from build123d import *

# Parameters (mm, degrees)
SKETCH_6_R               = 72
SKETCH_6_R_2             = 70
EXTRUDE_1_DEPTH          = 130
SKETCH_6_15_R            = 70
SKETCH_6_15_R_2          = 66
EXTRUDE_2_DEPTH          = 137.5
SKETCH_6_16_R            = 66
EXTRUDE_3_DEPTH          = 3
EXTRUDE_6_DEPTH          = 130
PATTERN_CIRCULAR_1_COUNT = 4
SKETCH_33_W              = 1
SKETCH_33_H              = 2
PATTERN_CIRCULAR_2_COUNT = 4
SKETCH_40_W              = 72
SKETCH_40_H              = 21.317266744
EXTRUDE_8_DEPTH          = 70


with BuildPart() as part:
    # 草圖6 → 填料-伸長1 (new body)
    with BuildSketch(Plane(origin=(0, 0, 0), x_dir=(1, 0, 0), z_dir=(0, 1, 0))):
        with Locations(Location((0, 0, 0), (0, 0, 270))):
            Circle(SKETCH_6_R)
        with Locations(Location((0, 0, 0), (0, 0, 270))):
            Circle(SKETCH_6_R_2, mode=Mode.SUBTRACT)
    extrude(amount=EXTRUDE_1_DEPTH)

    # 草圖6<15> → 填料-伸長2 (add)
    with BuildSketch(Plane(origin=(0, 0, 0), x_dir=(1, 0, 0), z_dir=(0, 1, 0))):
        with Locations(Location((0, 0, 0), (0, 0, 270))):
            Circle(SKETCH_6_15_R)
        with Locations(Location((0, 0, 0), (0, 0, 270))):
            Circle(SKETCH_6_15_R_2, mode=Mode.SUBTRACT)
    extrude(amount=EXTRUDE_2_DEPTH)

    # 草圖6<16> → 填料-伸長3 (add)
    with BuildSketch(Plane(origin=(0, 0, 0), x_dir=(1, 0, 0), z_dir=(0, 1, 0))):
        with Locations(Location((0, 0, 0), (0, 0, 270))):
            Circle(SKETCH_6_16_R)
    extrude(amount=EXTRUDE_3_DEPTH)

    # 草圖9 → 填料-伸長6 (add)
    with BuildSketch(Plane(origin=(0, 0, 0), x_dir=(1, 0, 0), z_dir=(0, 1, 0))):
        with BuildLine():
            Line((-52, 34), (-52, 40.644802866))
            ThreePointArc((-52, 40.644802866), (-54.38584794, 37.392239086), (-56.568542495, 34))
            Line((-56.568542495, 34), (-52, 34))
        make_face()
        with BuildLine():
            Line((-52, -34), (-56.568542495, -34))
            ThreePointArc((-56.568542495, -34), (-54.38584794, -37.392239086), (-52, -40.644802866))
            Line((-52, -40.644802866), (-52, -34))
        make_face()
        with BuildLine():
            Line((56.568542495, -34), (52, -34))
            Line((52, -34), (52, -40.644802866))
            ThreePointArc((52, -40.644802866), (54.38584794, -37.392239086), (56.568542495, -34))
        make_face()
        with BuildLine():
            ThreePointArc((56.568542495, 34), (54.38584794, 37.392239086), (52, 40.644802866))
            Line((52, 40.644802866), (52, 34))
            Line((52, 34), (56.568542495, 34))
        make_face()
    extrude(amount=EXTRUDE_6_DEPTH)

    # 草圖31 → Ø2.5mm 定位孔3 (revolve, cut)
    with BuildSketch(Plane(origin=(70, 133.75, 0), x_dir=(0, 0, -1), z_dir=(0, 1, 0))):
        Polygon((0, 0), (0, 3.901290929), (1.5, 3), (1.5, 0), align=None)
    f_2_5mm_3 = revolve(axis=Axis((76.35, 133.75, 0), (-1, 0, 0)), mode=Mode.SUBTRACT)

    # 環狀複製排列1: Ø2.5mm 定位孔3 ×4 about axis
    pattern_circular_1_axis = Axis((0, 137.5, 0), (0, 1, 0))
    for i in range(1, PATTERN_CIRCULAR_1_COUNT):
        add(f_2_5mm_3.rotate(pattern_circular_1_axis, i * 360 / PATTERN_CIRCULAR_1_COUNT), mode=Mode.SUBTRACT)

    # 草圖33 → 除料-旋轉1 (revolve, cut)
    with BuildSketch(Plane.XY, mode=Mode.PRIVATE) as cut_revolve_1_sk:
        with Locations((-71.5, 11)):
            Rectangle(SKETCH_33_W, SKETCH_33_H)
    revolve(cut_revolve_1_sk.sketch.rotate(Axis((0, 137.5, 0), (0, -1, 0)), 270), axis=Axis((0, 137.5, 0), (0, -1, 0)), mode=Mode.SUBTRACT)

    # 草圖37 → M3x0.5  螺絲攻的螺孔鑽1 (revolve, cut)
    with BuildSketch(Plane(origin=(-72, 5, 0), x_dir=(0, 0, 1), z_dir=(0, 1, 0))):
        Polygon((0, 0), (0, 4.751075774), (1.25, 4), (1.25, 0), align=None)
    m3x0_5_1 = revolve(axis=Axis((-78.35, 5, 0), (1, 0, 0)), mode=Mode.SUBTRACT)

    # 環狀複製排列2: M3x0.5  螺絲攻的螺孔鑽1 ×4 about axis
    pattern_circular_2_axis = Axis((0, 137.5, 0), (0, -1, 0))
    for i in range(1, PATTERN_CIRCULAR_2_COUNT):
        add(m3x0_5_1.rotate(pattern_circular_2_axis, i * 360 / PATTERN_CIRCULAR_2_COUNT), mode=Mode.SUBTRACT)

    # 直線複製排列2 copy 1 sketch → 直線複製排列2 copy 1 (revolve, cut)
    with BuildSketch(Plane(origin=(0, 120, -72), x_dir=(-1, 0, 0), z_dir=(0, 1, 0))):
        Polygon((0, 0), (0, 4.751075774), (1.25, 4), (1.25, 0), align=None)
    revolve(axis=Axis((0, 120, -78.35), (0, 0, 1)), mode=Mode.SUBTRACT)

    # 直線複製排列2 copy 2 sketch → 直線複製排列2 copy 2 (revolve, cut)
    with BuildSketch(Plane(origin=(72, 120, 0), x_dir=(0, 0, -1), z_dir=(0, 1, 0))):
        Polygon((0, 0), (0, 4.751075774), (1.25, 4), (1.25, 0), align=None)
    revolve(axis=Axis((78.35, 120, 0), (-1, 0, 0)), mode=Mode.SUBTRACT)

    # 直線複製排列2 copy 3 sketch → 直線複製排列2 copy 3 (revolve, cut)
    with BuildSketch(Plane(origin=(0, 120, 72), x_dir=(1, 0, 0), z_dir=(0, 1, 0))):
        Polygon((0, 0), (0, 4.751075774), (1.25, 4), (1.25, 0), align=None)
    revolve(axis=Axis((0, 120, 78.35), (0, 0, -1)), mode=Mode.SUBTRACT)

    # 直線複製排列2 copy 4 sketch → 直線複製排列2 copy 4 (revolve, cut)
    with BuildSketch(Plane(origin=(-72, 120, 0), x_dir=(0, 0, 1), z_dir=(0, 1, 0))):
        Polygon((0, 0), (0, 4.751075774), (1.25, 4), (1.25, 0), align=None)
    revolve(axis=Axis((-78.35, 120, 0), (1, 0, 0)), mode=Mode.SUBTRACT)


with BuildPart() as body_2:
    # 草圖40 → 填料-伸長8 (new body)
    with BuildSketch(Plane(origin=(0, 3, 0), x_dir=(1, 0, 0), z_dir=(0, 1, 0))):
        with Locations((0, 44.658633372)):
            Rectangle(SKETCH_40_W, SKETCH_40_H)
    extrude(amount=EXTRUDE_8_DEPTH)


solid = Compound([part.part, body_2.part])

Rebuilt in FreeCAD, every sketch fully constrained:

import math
import FreeCAD as App
import Part
import Sketcher
Q = App.Units.Quantity

doc = App.newDocument("Part")
body = doc.addObject("PartDesign::Body", "Body")

# Sketch on XZ plane
sketch1 = body.newObject("Sketcher::SketchObject", "Sketch")
sketch1.AttachmentSupport = (doc.getObject("XZ_Plane"), [""])
sketch1.MapMode = "FlatFace"
sketch1.addGeometry(Part.Circle(App.Vector(0, 0, 0), App.Vector(0, 0, 1), 72), False)
sketch1.addGeometry(Part.Circle(App.Vector(0, 0, 0), App.Vector(0, 0, 1), 70), False)
sketch1.addConstraint(Sketcher.Constraint("Coincident", 0, 3, -1, 1))
sketch1.addConstraint(Sketcher.Constraint("Coincident", 1, 3, -1, 1))
sketch1.addConstraint(Sketcher.Constraint("Diameter", 0, 144.0))
sketch1.addConstraint(Sketcher.Constraint("Diameter", 1, 140.0))
pad1 = body.newObject("PartDesign::Pad", "Pad")
pad1.Profile = sketch1
pad1.Length = 130
pad1.Reversed = True

# Sketch on XZ plane
sketch2 = body.newObject("Sketcher::SketchObject", "Sketch001")
sketch2.AttachmentSupport = (doc.getObject("XZ_Plane"), [""])
sketch2.MapMode = "FlatFace"
sketch2.addGeometry(Part.Circle(App.Vector(0, 0, 0), App.Vector(0, 0, 1), 70), False)
sketch2.addGeometry(Part.Circle(App.Vector(0, 0, 0), App.Vector(0, 0, 1), 66), False)
sketch2.addConstraint(Sketcher.Constraint("Coincident", 0, 3, -1, 1))
sketch2.addConstraint(Sketcher.Constraint("Coincident", 1, 3, -1, 1))
sketch2.addConstraint(Sketcher.Constraint("Diameter", 0, 140.0))
sketch2.addConstraint(Sketcher.Constraint("Diameter", 1, 132.0))
pad2 = body.newObject("PartDesign::Pad", "Pad001")
pad2.Profile = sketch2
pad2.Length = 137.5
pad2.Reversed = True

# Sketch on XZ plane
sketch3 = body.newObject("Sketcher::SketchObject", "Sketch002")
sketch3.AttachmentSupport = (doc.getObject("XZ_Plane"), [""])
sketch3.MapMode = "FlatFace"
sketch3.addGeometry(Part.Circle(App.Vector(0, 0, 0), App.Vector(0, 0, 1), 66), False)
sketch3.addConstraint(Sketcher.Constraint("Coincident", 0, 3, -1, 1))
sketch3.addConstraint(Sketcher.Constraint("Diameter", 0, 132.0))
pad3 = body.newObject("PartDesign::Pad", "Pad002")
pad3.Profile = sketch3
pad3.Length = 3
pad3.Reversed = True

# Sketch on XZ plane
sketch4 = body.newObject("Sketcher::SketchObject", "Sketch003")
sketch4.AttachmentSupport = (doc.getObject("XZ_Plane"), [""])
sketch4.MapMode = "FlatFace"
sketch4.addGeometry(Part.LineSegment(App.Vector(-52, -34, 0), App.Vector(-52, -40.6, 0)), False)
sketch4.addGeometry(Part.ArcOfCircle(Part.Circle(App.Vector(0, 0, 0), App.Vector(0, 0, 1), 66), math.radians(-148.99), math.radians(-141.99)), False)
sketch4.addGeometry(Part.LineSegment(App.Vector(-56.6, -34, 0), App.Vector(-52, -34, 0)), False)
sketch4.addGeometry(Part.LineSegment(App.Vector(-52, 34, 0), App.Vector(-56.6, 34, 0)), False)
sketch4.addGeometry(Part.ArcOfCircle(Part.Circle(App.Vector(0, 0, 0), App.Vector(0, 0, 1), 66), math.radians(141.99), math.radians(148.99)), False)
sketch4.addGeometry(Part.LineSegment(App.Vector(-52, 40.6, 0), App.Vector(-52, 34, 0)), False)
sketch4.addGeometry(Part.LineSegment(App.Vector(56.6, 34, 0), App.Vector(52, 34, 0)), False)
sketch4.addGeometry(Part.LineSegment(App.Vector(52, 34, 0), App.Vector(52, 40.6, 0)), False)
sketch4.addGeometry(Part.ArcOfCircle(Part.Circle(App.Vector(0, 0, 0), App.Vector(0, 0, 1), 66), math.radians(31.01), math.radians(38.01)), False)
sketch4.addGeometry(Part.ArcOfCircle(Part.Circle(App.Vector(0, 0, 0), App.Vector(0, 0, 1), 66), math.radians(-38.01), math.radians(-31.01)), False)
sketch4.addGeometry(Part.LineSegment(App.Vector(52, -40.6, 0), App.Vector(52, -34, 0)), False)
sketch4.addGeometry(Part.LineSegment(App.Vector(52, -34, 0), App.Vector(56.6, -34, 0)), False)
sketch4.addConstraint(Sketcher.Constraint("Coincident", 0, 2, 1, 2))
sketch4.addConstraint(Sketcher.Constraint("Coincident", 1, 1, 2, 1))
sketch4.addConstraint(Sketcher.Constraint("Coincident", 2, 2, 0, 1))
sketch4.addConstraint(Sketcher.Constraint("Coincident", 3, 2, 4, 2))
sketch4.addConstraint(Sketcher.Constraint("Coincident", 4, 1, 5, 1))
sketch4.addConstraint(Sketcher.Constraint("Coincident", 5, 2, 3, 1))
sketch4.addConstraint(Sketcher.Constraint("Coincident", 6, 2, 7, 1))
sketch4.addConstraint(Sketcher.Constraint("Coincident", 7, 2, 8, 2))
sketch4.addConstraint(Sketcher.Constraint("Coincident", 8, 1, 6, 1))
sketch4.addConstraint(Sketcher.Constraint("Coincident", 9, 1, 10, 1))
sketch4.addConstraint(Sketcher.Constraint("Coincident", 10, 2, 11, 1))
sketch4.addConstraint(Sketcher.Constraint("Coincident", 11, 2, 9, 2))
sketch4.addConstraint(Sketcher.Constraint("Vertical", 0))
sketch4.addConstraint(Sketcher.Constraint("Horizontal", 2))
sketch4.addConstraint(Sketcher.Constraint("Horizontal", 3))
sketch4.addConstraint(Sketcher.Constraint("Vertical", 5))
sketch4.addConstraint(Sketcher.Constraint("Horizontal", 6))
sketch4.addConstraint(Sketcher.Constraint("Vertical", 7))
sketch4.addConstraint(Sketcher.Constraint("Vertical", 10))
sketch4.addConstraint(Sketcher.Constraint("Horizontal", 11))
sketch4.addConstraint(Sketcher.Constraint("Coincident", 1, 3, -1, 1))
sketch4.addConstraint(Sketcher.Constraint("Coincident", 4, 3, -1, 1))
sketch4.addConstraint(Sketcher.Constraint("Coincident", 8, 3, -1, 1))
sketch4.addConstraint(Sketcher.Constraint("Coincident", 9, 3, -1, 1))
sketch4.addConstraint(Sketcher.Constraint("Equal", 1, 4))
sketch4.addConstraint(Sketcher.Constraint("Equal", 4, 8))
sketch4.addConstraint(Sketcher.Constraint("Equal", 8, 9))
sketch4.addConstraint(Sketcher.Constraint("Symmetric", 2, 2, 6, 2, -1, 1))
sketch4.addConstraint(Sketcher.Constraint("Symmetric", 5, 2, 10, 2, -1, 1))
sketch4.addConstraint(Sketcher.Constraint("Symmetric", 5, 2, 6, 2, -2))
sketch4.addConstraint(Sketcher.Constraint("Radius", 1, 66.0))
sketch4.addConstraint(Sketcher.Constraint("DistanceX", 0, 2, -1, 1, 52.0))
sketch4.addConstraint(Sketcher.Constraint("DistanceY", 1, 1, -1, 1, 34.0))
pad4 = body.newObject("PartDesign::Pad", "Pad003")
pad4.Profile = sketch4
pad4.Length = 130
pad4.Reversed = True

# Sketch on XZ plane
sketch5 = body.newObject("Sketcher::SketchObject", "Sketch004")
sketch5.AttachmentSupport = (doc.getObject("XZ_Plane"), [""])
sketch5.MapMode = "FlatFace"
sketch5.AttachmentOffset = App.Placement(App.Vector(0, 0, -133.75), App.Rotation())
sketch5.addGeometry(Part.LineSegment(App.Vector(66.1, 0, 0), App.Vector(70, 0, 0)), False)
sketch5.addGeometry(Part.LineSegment(App.Vector(70, 0, 0), App.Vector(70, -1.5, 0)), False)
sketch5.addGeometry(Part.LineSegment(App.Vector(70, -1.5, 0), App.Vector(67, -1.5, 0)), False)
sketch5.addGeometry(Part.LineSegment(App.Vector(67, -1.5, 0), App.Vector(66.1, 0, 0)), False)
sketch5.addConstraint(Sketcher.Constraint("Coincident", 0, 2, 1, 1))
sketch5.addConstraint(Sketcher.Constraint("Coincident", 1, 2, 2, 1))
sketch5.addConstraint(Sketcher.Constraint("Coincident", 2, 2, 3, 1))
sketch5.addConstraint(Sketcher.Constraint("Coincident", 3, 2, 0, 1))
sketch5.addConstraint(Sketcher.Constraint("Horizontal", 0))
sketch5.addConstraint(Sketcher.Constraint("Vertical", 1))
sketch5.addConstraint(Sketcher.Constraint("Horizontal", 2))
sketch5.addConstraint(Sketcher.Constraint("PointOnObject", 0, 2, -1))
sketch5.addConstraint(Sketcher.Constraint("DistanceX", 2, 2, 2, 1, 3.0))
sketch5.addConstraint(Sketcher.Constraint("Angle", 3, Q("121 deg")))
sketch5.addConstraint(Sketcher.Constraint("DistanceY", 1, 2, 1, 1, 1.5))
sketch5.addConstraint(Sketcher.Constraint("DistanceX", -1, 1, 0, 2, 70.0))
groove = body.newObject("PartDesign::Groove", "Groove")
groove.Profile = sketch5
groove.ReferenceAxis = (sketch5, ["H_Axis"])
groove.Angle = 360
doc.recompute()

polarpattern = body.newObject("PartDesign::PolarPattern", "PolarPattern")
polarpattern.Originals = [groove]
polarpattern.Axis = (doc.getObject("Y_Axis"), [""])
polarpattern.Angle = 360
polarpattern.Occurrences = 4
body.Tip = polarpattern

# Sketch on XY plane
sketch6 = body.newObject("Sketcher::SketchObject", "Sketch005")
sketch6.AttachmentSupport = (doc.getObject("XY_Plane"), [""])
sketch6.MapMode = "FlatFace"
sketch6.addGeometry(Part.LineSegment(App.Vector(-72, 12, 0), App.Vector(-72, 10, 0)), False)
sketch6.addGeometry(Part.LineSegment(App.Vector(-72, 10, 0), App.Vector(-71, 10, 0)), False)
sketch6.addGeometry(Part.LineSegment(App.Vector(-71, 10, 0), App.Vector(-71, 12, 0)), False)
sketch6.addGeometry(Part.LineSegment(App.Vector(-71, 12, 0), App.Vector(-72, 12, 0)), False)
sketch6.addConstraint(Sketcher.Constraint("Coincident", 0, 2, 1, 1))
sketch6.addConstraint(Sketcher.Constraint("Coincident", 1, 2, 2, 1))
sketch6.addConstraint(Sketcher.Constraint("Coincident", 2, 2, 3, 1))
sketch6.addConstraint(Sketcher.Constraint("Coincident", 3, 2, 0, 1))
sketch6.addConstraint(Sketcher.Constraint("Vertical", 0))
sketch6.addConstraint(Sketcher.Constraint("Horizontal", 1))
sketch6.addConstraint(Sketcher.Constraint("Vertical", 2))
sketch6.addConstraint(Sketcher.Constraint("Horizontal", 3))
sketch6.addConstraint(Sketcher.Constraint("DistanceX", 1, 1, 1, 2, 1.0))
sketch6.addConstraint(Sketcher.Constraint("DistanceY", 0, 2, 0, 1, 2.0))
sketch6.addConstraint(Sketcher.Constraint("DistanceX", 0, 2, -1, 1, 72.0))
sketch6.addConstraint(Sketcher.Constraint("DistanceY", -1, 1, 0, 2, 10.0))
groove2 = body.newObject("PartDesign::Groove", "Groove001")
groove2.Profile = sketch6
groove2.ReferenceAxis = (sketch6, ["V_Axis"])
groove2.Angle = 360

# Sketch on XZ plane
sketch7 = body.newObject("Sketcher::SketchObject", "Sketch006")
sketch7.AttachmentSupport = (doc.getObject("XZ_Plane"), [""])
sketch7.MapMode = "FlatFace"
sketch7.AttachmentOffset = App.Placement(App.Vector(0, 0, -5), App.Rotation())
sketch7.addGeometry(Part.LineSegment(App.Vector(-67.2, 0, 0), App.Vector(-72, 0, 0)), False)
sketch7.addGeometry(Part.LineSegment(App.Vector(-72, 0, 0), App.Vector(-72, 1.2, 0)), False)
sketch7.addGeometry(Part.LineSegment(App.Vector(-72, 1.2, 0), App.Vector(-68, 1.2, 0)), False)
sketch7.addGeometry(Part.LineSegment(App.Vector(-68, 1.2, 0), App.Vector(-67.2, 0, 0)), False)
sketch7.addConstraint(Sketcher.Constraint("Coincident", 0, 2, 1, 1))
sketch7.addConstraint(Sketcher.Constraint("Coincident", 1, 2, 2, 1))
sketch7.addConstraint(Sketcher.Constraint("Coincident", 2, 2, 3, 1))
sketch7.addConstraint(Sketcher.Constraint("Coincident", 3, 2, 0, 1))
sketch7.addConstraint(Sketcher.Constraint("Horizontal", 0))
sketch7.addConstraint(Sketcher.Constraint("Vertical", 1))
sketch7.addConstraint(Sketcher.Constraint("Horizontal", 2))
sketch7.addConstraint(Sketcher.Constraint("PointOnObject", 0, 2, -1))
sketch7.addConstraint(Sketcher.Constraint("DistanceX", 2, 1, 2, 2, 4.0))
sketch7.addConstraint(Sketcher.Constraint("Angle", 3, Q("-59 deg")))
sketch7.addConstraint(Sketcher.Constraint("DistanceX", 0, 2, -1, 1, 72.0))
sketch7.addConstraint(Sketcher.Constraint("DistanceY", 1, 1, 1, 2, 1.25))
groove3 = body.newObject("PartDesign::Groove", "Groove002")
groove3.Profile = sketch7
groove3.ReferenceAxis = (sketch7, ["H_Axis"])
groove3.Angle = 360
doc.recompute()

polarpattern2 = body.newObject("PartDesign::PolarPattern", "PolarPattern001")
polarpattern2.Originals = [groove3]
polarpattern2.Axis = (doc.getObject("Y_Axis"), [""])
polarpattern2.Angle = 360
polarpattern2.Occurrences = 4
body.Tip = polarpattern2

# Sketch on XZ plane
sketch8 = body.newObject("Sketcher::SketchObject", "Sketch007")
sketch8.AttachmentSupport = (doc.getObject("XZ_Plane"), [""])
sketch8.MapMode = "FlatFace"
sketch8.AttachmentOffset = App.Placement(App.Vector(0, 0, -120), App.Rotation())
sketch8.addGeometry(Part.LineSegment(App.Vector(0, -67.2, 0), App.Vector(0, -72, 0)), False)
sketch8.addGeometry(Part.LineSegment(App.Vector(0, -72, 0), App.Vector(-1.2, -72, 0)), False)
sketch8.addGeometry(Part.LineSegment(App.Vector(-1.2, -72, 0), App.Vector(-1.2, -68, 0)), False)
sketch8.addGeometry(Part.LineSegment(App.Vector(-1.2, -68, 0), App.Vector(0, -67.2, 0)), False)
sketch8.addConstraint(Sketcher.Constraint("Coincident", 0, 2, 1, 1))
sketch8.addConstraint(Sketcher.Constraint("Coincident", 1, 2, 2, 1))
sketch8.addConstraint(Sketcher.Constraint("Coincident", 2, 2, 3, 1))
sketch8.addConstraint(Sketcher.Constraint("Coincident", 3, 2, 0, 1))
sketch8.addConstraint(Sketcher.Constraint("Vertical", 0))
sketch8.addConstraint(Sketcher.Constraint("Horizontal", 1))
sketch8.addConstraint(Sketcher.Constraint("Vertical", 2))
sketch8.addConstraint(Sketcher.Constraint("PointOnObject", 0, 2, -2))
sketch8.addConstraint(Sketcher.Constraint("DistanceY", 2, 1, 2, 2, 4.0))
sketch8.addConstraint(Sketcher.Constraint("Angle", 3, Q("31 deg")))
sketch8.addConstraint(Sketcher.Constraint("DistanceY", 0, 2, -1, 1, 72.0))
sketch8.addConstraint(Sketcher.Constraint("DistanceX", 1, 2, 1, 1, 1.25))
groove4 = body.newObject("PartDesign::Groove", "Groove003")
groove4.Profile = sketch8
groove4.ReferenceAxis = (sketch8, ["V_Axis"])
groove4.Angle = 360

# Sketch on XZ plane
sketch9 = body.newObject("Sketcher::SketchObject", "Sketch008")
sketch9.AttachmentSupport = (doc.getObject("XZ_Plane"), [""])
sketch9.MapMode = "FlatFace"
sketch9.AttachmentOffset = App.Placement(App.Vector(0, 0, -120), App.Rotation())
sketch9.addGeometry(Part.LineSegment(App.Vector(67.2, 0, 0), App.Vector(72, 0, 0)), False)
sketch9.addGeometry(Part.LineSegment(App.Vector(72, 0, 0), App.Vector(72, -1.2, 0)), False)
sketch9.addGeometry(Part.LineSegment(App.Vector(72, -1.2, 0), App.Vector(68, -1.2, 0)), False)
sketch9.addGeometry(Part.LineSegment(App.Vector(68, -1.2, 0), App.Vector(67.2, 0, 0)), False)
sketch9.addConstraint(Sketcher.Constraint("Coincident", 0, 2, 1, 1))
sketch9.addConstraint(Sketcher.Constraint("Coincident", 1, 2, 2, 1))
sketch9.addConstraint(Sketcher.Constraint("Coincident", 2, 2, 3, 1))
sketch9.addConstraint(Sketcher.Constraint("Coincident", 3, 2, 0, 1))
sketch9.addConstraint(Sketcher.Constraint("Horizontal", 0))
sketch9.addConstraint(Sketcher.Constraint("Vertical", 1))
sketch9.addConstraint(Sketcher.Constraint("Horizontal", 2))
sketch9.addConstraint(Sketcher.Constraint("PointOnObject", 0, 2, -1))
sketch9.addConstraint(Sketcher.Constraint("DistanceX", 2, 2, 2, 1, 4.0))
sketch9.addConstraint(Sketcher.Constraint("Angle", 3, Q("121 deg")))
sketch9.addConstraint(Sketcher.Constraint("DistanceX", -1, 1, 0, 2, 72.0))
sketch9.addConstraint(Sketcher.Constraint("DistanceY", 1, 2, 1, 1, 1.25))
groove5 = body.newObject("PartDesign::Groove", "Groove004")
groove5.Profile = sketch9
groove5.ReferenceAxis = (sketch9, ["H_Axis"])
groove5.Angle = 360

# Sketch on XZ plane
sketch10 = body.newObject("Sketcher::SketchObject", "Sketch009")
sketch10.AttachmentSupport = (doc.getObject("XZ_Plane"), [""])
sketch10.MapMode = "FlatFace"
sketch10.AttachmentOffset = App.Placement(App.Vector(0, 0, -120), App.Rotation())
sketch10.addGeometry(Part.LineSegment(App.Vector(0, 67.2, 0), App.Vector(0, 72, 0)), False)
sketch10.addGeometry(Part.LineSegment(App.Vector(0, 72, 0), App.Vector(1.2, 72, 0)), False)
sketch10.addGeometry(Part.LineSegment(App.Vector(1.2, 72, 0), App.Vector(1.2, 68, 0)), False)
sketch10.addGeometry(Part.LineSegment(App.Vector(1.2, 68, 0), App.Vector(0, 67.2, 0)), False)
sketch10.addConstraint(Sketcher.Constraint("Coincident", 0, 2, 1, 1))
sketch10.addConstraint(Sketcher.Constraint("Coincident", 1, 2, 2, 1))
sketch10.addConstraint(Sketcher.Constraint("Coincident", 2, 2, 3, 1))
sketch10.addConstraint(Sketcher.Constraint("Coincident", 3, 2, 0, 1))
sketch10.addConstraint(Sketcher.Constraint("Vertical", 0))
sketch10.addConstraint(Sketcher.Constraint("Horizontal", 1))
sketch10.addConstraint(Sketcher.Constraint("Vertical", 2))
sketch10.addConstraint(Sketcher.Constraint("PointOnObject", 0, 2, -2))
sketch10.addConstraint(Sketcher.Constraint("DistanceY", 2, 2, 2, 1, 4.0))
sketch10.addConstraint(Sketcher.Constraint("Angle", 3, Q("-149 deg")))
sketch10.addConstraint(Sketcher.Constraint("DistanceY", -1, 1, 0, 2, 72.0))
sketch10.addConstraint(Sketcher.Constraint("DistanceX", 1, 1, 1, 2, 1.25))
groove6 = body.newObject("PartDesign::Groove", "Groove005")
groove6.Profile = sketch10
groove6.ReferenceAxis = (sketch10, ["V_Axis"])
groove6.Angle = 360

# Sketch on XZ plane
sketch11 = body.newObject("Sketcher::SketchObject", "Sketch010")
sketch11.AttachmentSupport = (doc.getObject("XZ_Plane"), [""])
sketch11.MapMode = "FlatFace"
sketch11.AttachmentOffset = App.Placement(App.Vector(0, 0, -120), App.Rotation())
sketch11.addGeometry(Part.LineSegment(App.Vector(-67.2, 0, 0), App.Vector(-72, 0, 0)), False)
sketch11.addGeometry(Part.LineSegment(App.Vector(-72, 0, 0), App.Vector(-72, 1.2, 0)), False)
sketch11.addGeometry(Part.LineSegment(App.Vector(-72, 1.2, 0), App.Vector(-68, 1.2, 0)), False)
sketch11.addGeometry(Part.LineSegment(App.Vector(-68, 1.2, 0), App.Vector(-67.2, 0, 0)), False)
sketch11.addConstraint(Sketcher.Constraint("Coincident", 0, 2, 1, 1))
sketch11.addConstraint(Sketcher.Constraint("Coincident", 1, 2, 2, 1))
sketch11.addConstraint(Sketcher.Constraint("Coincident", 2, 2, 3, 1))
sketch11.addConstraint(Sketcher.Constraint("Coincident", 3, 2, 0, 1))
sketch11.addConstraint(Sketcher.Constraint("Horizontal", 0))
sketch11.addConstraint(Sketcher.Constraint("Vertical", 1))
sketch11.addConstraint(Sketcher.Constraint("Horizontal", 2))
sketch11.addConstraint(Sketcher.Constraint("PointOnObject", 0, 2, -1))
sketch11.addConstraint(Sketcher.Constraint("DistanceX", 2, 1, 2, 2, 4.0))
sketch11.addConstraint(Sketcher.Constraint("Angle", 3, Q("-59 deg")))
sketch11.addConstraint(Sketcher.Constraint("DistanceX", 0, 2, -1, 1, 72.0))
sketch11.addConstraint(Sketcher.Constraint("DistanceY", 1, 1, 1, 2, 1.25))
groove7 = body.newObject("PartDesign::Groove", "Groove006")
groove7.Profile = sketch11
groove7.ReferenceAxis = (sketch11, ["H_Axis"])
groove7.Angle = 360
body2 = doc.addObject("PartDesign::Body", "Body001")

# Sketch on XZ plane
sketch12 = body2.newObject("Sketcher::SketchObject", "Sketch011")
sketch12.AttachmentSupport = (doc.getObject("XZ_Plane001"), [""])
sketch12.MapMode = "FlatFace"
sketch12.AttachmentOffset = App.Placement(App.Vector(0, 0, -3), App.Rotation())
sketch12.addGeometry(Part.LineSegment(App.Vector(-36, -55, 0), App.Vector(-36, -34, 0)), False)
sketch12.addGeometry(Part.LineSegment(App.Vector(-36, -34, 0), App.Vector(36, -34, 0)), False)
sketch12.addGeometry(Part.LineSegment(App.Vector(36, -34, 0), App.Vector(36, -55, 0)), False)
sketch12.addGeometry(Part.LineSegment(App.Vector(36, -55, 0), App.Vector(-36, -55, 0)), False)
sketch12.addConstraint(Sketcher.Constraint("Coincident", 0, 2, 1, 1))
sketch12.addConstraint(Sketcher.Constraint("Coincident", 1, 2, 2, 1))
sketch12.addConstraint(Sketcher.Constraint("Coincident", 2, 2, 3, 1))
sketch12.addConstraint(Sketcher.Constraint("Coincident", 3, 2, 0, 1))
sketch12.addConstraint(Sketcher.Constraint("Vertical", 0))
sketch12.addConstraint(Sketcher.Constraint("Horizontal", 1))
sketch12.addConstraint(Sketcher.Constraint("Vertical", 2))
sketch12.addConstraint(Sketcher.Constraint("Horizontal", 3))
sketch12.addConstraint(Sketcher.Constraint("DistanceX", 1, 1, 1, 2, 72.0))
sketch12.addConstraint(Sketcher.Constraint("DistanceX", 0, 2, -1, 1, 36.0))
sketch12.addConstraint(Sketcher.Constraint("DistanceY", 0, 2, -1, 1, 34.0))
sketch12.addConstraint(Sketcher.Constraint("DistanceY", 0, 1, 0, 2, 21.317267))
pad5 = body2.newObject("PartDesign::Pad", "Pad004")
pad5.Profile = sketch12
pad5.Length = 70
pad5.Reversed = True

doc.recompute()
